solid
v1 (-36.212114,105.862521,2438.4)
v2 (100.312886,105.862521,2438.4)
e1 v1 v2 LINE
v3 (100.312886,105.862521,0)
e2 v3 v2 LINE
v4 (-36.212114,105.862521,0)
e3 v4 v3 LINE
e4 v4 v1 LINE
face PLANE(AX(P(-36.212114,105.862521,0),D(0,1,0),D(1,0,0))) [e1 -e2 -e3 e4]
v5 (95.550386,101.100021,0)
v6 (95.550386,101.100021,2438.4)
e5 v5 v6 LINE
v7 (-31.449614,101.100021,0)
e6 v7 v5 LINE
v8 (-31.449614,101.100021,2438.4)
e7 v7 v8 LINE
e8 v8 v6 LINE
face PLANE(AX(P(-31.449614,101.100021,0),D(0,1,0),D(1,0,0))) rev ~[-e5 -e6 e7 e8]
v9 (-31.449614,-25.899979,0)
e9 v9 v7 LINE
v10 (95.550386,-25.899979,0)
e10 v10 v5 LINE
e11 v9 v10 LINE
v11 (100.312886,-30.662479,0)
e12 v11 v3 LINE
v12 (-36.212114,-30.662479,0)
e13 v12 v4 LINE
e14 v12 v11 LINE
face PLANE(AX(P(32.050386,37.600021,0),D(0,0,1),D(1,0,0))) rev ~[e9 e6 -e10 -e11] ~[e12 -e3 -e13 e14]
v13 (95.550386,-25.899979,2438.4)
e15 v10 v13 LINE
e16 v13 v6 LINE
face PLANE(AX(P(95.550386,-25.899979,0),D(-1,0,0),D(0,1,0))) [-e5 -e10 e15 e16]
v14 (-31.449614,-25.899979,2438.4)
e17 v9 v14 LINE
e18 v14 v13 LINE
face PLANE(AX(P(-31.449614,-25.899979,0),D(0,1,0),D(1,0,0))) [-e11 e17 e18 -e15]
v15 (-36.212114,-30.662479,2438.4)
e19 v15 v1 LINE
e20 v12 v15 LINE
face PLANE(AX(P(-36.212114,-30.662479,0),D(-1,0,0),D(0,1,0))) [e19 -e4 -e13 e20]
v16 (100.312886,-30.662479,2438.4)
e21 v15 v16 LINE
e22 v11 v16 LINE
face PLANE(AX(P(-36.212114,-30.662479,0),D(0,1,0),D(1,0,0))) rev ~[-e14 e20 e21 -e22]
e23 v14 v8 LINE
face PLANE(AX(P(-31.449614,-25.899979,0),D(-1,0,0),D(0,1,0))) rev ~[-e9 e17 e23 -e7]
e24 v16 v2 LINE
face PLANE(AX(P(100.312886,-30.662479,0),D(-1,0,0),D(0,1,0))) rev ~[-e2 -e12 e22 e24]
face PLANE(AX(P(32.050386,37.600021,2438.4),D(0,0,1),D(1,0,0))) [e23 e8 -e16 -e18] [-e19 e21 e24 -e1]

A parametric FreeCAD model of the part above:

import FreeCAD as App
import Part
import Sketcher
from FreeCAD import Vector
Q = App.Units.Quantity

doc = App.newDocument("Part")
params = doc.addObject("Spreadsheet::Sheet", "Params")
for row, (alias, value) in enumerate([
    ("sketch1_width", "5 in"),
    ("sketch1_width2", "5.375 in"),
    ("pad1_length", "96 in"),
], start=1):
    params.set(f"A{row}", alias)
    params.set(f"B{row}", "=" + value)
    params.setAlias(f"B{row}", alias)

body = doc.addObject("PartDesign::Body", "Body")

# Sketch on XY plane
sketch1 = body.newObject("Sketcher::SketchObject", "Sketch")
sketch1.AttachmentSupport = (doc.getObject("XY_Plane"), [""])
sketch1.MapMode = "FlatFace"
sketch1.addGeometry(Part.LineSegment(Vector(-36.212114, 105.862521, 0), Vector(-36.212114, -30.662479, 0)), False)
sketch1.addGeometry(Part.LineSegment(Vector(-36.212114, -30.662479, 0), Vector(100.312886, -30.662479, 0)), False)
sketch1.addGeometry(Part.LineSegment(Vector(100.312886, -30.662479, 0), Vector(100.312886, 105.862521, 0)), False)
sketch1.addGeometry(Part.LineSegment(Vector(100.312886, 105.862521, 0), Vector(-36.212114, 105.862521, 0)), False)
sketch1.addGeometry(Part.LineSegment(Vector(95.550386, -25.899979, 0), Vector(-31.449614, -25.899979, 0)), False)
sketch1.addGeometry(Part.LineSegment(Vector(-31.449614, -25.899979, 0), Vector(-31.449614, 101.100021, 0)), False)
sketch1.addGeometry(Part.LineSegment(Vector(-31.449614, 101.100021, 0), Vector(95.550386, 101.100021, 0)), False)
sketch1.addGeometry(Part.LineSegment(Vector(95.550386, 101.100021, 0), Vector(95.550386, -25.899979, 0)), False)
sketch1.addConstraint(Sketcher.Constraint("Coincident", 0, 2, 1, 1))
sketch1.addConstraint(Sketcher.Constraint("Coincident", 1, 2, 2, 1))
sketch1.addConstraint(Sketcher.Constraint("Coincident", 2, 2, 3, 1))
sketch1.addConstraint(Sketcher.Constraint("Coincident", 3, 2, 0, 1))
sketch1.addConstraint(Sketcher.Constraint("Coincident", 4, 2, 5, 1))
sketch1.addConstraint(Sketcher.Constraint("Coincident", 5, 2, 6, 1))
sketch1.addConstraint(Sketcher.Constraint("Coincident", 6, 2, 7, 1))
sketch1.addConstraint(Sketcher.Constraint("Coincident", 7, 2, 4, 1))
sketch1.addConstraint(Sketcher.Constraint("Vertical", 0))
sketch1.addConstraint(Sketcher.Constraint("Horizontal", 1))
sketch1.addConstraint(Sketcher.Constraint("Vertical", 2))
sketch1.addConstraint(Sketcher.Constraint("Horizontal", 3))
sketch1.addConstraint(Sketcher.Constraint("Horizontal", 4))
sketch1.addConstraint(Sketcher.Constraint("Vertical", 5))
sketch1.addConstraint(Sketcher.Constraint("Horizontal", 6))
sketch1.addConstraint(Sketcher.Constraint("Vertical", 7))
sketch1.addConstraint(Sketcher.Constraint("Equal", 3, 0))
sketch1.addConstraint(Sketcher.Constraint("Equal", 6, 5))
sketch1.addConstraint(Sketcher.Constraint("DistanceX", 4, 2, 4, 1, Q("5 in")))
sketch1.addConstraint(Sketcher.Constraint("DistanceX", 1, 1, 1, 2, Q("5.375 in")))
sketch1.addConstraint(Sketcher.Constraint("DistanceX", 0, 2, 4, 2, Q("0.1875 in")))
sketch1.addConstraint(Sketcher.Constraint("DistanceY", 0, 2, 4, 2, Q("0.1875 in")))
sketch1.addConstraint(Sketcher.Constraint("DistanceY", 0, 2, -1, 1, Q("30.662479 mm")))
sketch1.addConstraint(Sketcher.Constraint("DistanceX", 0, 2, -1, 1, Q("36.212114 mm")))
sketch1.setExpression("Constraints[18]", "Params.sketch1_width")
sketch1.setExpression("Constraints[19]", "Params.sketch1_width2")
pad1 = body.newObject("PartDesign::Pad", "Pad")
pad1.Profile = sketch1
pad1.setExpression("Length", "Params.pad1_length")

doc.recompute()
